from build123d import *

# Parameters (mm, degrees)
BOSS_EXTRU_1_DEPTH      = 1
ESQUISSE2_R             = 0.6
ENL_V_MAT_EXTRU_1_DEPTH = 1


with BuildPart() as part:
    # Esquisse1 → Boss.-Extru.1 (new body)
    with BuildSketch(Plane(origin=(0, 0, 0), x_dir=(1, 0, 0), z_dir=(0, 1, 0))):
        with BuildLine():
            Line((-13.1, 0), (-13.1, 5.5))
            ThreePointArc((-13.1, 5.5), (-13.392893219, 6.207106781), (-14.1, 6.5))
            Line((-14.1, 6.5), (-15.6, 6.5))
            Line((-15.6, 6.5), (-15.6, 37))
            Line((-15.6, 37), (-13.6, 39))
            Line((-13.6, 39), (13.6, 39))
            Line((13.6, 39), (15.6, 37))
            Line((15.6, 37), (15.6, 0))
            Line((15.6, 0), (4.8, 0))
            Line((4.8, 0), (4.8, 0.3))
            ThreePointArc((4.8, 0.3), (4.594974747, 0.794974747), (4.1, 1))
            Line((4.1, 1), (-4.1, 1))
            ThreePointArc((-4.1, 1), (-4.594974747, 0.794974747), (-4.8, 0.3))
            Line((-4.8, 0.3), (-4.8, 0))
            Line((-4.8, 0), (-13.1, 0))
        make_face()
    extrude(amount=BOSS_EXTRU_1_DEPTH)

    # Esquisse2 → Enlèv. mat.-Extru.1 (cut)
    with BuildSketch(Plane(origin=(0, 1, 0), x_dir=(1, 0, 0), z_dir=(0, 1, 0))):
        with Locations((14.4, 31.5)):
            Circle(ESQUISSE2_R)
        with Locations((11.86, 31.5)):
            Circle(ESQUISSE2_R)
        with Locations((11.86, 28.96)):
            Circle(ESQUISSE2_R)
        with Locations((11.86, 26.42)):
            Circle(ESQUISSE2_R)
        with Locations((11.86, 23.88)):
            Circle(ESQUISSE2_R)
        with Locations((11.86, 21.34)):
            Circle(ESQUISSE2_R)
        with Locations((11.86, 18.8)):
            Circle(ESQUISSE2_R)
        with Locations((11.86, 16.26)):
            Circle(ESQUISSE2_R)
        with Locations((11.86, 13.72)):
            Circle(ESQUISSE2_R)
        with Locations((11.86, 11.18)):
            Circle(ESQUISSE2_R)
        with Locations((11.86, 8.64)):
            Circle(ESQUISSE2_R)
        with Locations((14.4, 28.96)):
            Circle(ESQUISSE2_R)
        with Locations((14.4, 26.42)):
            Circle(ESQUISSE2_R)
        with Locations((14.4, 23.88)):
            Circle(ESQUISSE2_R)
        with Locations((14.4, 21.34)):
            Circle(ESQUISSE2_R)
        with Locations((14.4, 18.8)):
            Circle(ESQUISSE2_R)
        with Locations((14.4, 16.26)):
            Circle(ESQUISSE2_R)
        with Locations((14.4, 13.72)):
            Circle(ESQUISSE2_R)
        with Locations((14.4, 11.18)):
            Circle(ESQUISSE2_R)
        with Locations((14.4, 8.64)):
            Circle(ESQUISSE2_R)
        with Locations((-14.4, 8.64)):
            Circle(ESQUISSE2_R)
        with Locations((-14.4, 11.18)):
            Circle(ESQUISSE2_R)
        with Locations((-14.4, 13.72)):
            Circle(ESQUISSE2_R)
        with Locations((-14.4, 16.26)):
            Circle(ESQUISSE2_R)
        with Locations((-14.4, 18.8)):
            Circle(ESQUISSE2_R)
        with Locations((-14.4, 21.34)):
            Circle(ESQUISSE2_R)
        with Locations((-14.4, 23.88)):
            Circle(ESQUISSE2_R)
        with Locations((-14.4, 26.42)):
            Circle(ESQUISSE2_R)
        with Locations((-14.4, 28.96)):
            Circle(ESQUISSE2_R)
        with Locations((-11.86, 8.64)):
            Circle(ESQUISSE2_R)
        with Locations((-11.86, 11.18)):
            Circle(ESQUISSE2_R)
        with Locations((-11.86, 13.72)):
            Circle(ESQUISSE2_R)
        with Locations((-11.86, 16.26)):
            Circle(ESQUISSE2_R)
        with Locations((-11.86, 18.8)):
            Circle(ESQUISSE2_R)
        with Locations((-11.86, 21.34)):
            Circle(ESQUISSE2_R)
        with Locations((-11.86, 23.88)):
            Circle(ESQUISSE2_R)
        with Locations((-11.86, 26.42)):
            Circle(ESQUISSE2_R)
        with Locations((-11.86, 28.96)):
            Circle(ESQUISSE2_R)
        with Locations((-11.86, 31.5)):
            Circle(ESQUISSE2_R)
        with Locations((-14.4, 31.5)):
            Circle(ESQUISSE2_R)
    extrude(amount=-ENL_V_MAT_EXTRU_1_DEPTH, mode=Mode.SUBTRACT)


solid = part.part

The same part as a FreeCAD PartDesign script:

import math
import FreeCAD as App
import Part
import Sketcher

V = App.Vector

doc = App.newDocument("Part")
body = doc.addObject("PartDesign::Body", "Body")

# Sketch on XZ plane
sketch1 = body.newObject("Sketcher::SketchObject", "Sketch")
sketch1.AttachmentSupport = (doc.getObject("XZ_Plane"), [""])
sketch1.MapMode = "FlatFace"
sketch1.addGeometry([
    Part.LineSegment(V(-13.1, -5.5, 0), V(-13.1, 0, 0)),  # 0
    Part.LineSegment(V(-13.1, 0, 0), V(-4.8, 0, 0)),  # 1
    Part.LineSegment(V(-4.8, 0, 0), V(-4.8, -0.3, 0)),  # 2
    Part.ArcOfCircle(Part.Circle(V(-4.1, -0.3, 0), V(0, 0, 1), 0.7), math.radians(180), math.radians(270)),  # 3
    Part.LineSegment(V(-4.1, -1, 0), V(4.1, -1, 0)),  # 4
    Part.ArcOfCircle(Part.Circle(V(4.1, -0.3, 0), V(0, 0, 1), 0.7), math.radians(-90), math.radians(0)),  # 5
    Part.LineSegment(V(4.8, -0.3, 0), V(4.8, 0, 0)),  # 6
    Part.LineSegment(V(4.8, 0, 0), V(15.6, 0, 0)),  # 7
    Part.LineSegment(V(15.6, 0, 0), V(15.6, -37, 0)),  # 8
    Part.LineSegment(V(15.6, -37, 0), V(13.6, -39, 0)),  # 9
    Part.LineSegment(V(13.6, -39, 0), V(-13.6, -39, 0)),  # 10
    Part.LineSegment(V(-13.6, -39, 0), V(-15.6, -37, 0)),  # 11
    Part.LineSegment(V(-15.6, -37, 0), V(-15.6, -6.5, 0)),  # 12
    Part.LineSegment(V(-15.6, -6.5, 0), V(-14.1, -6.5, 0)),  # 13
    Part.ArcOfCircle(Part.Circle(V(-14.1, -5.5, 0), V(0, 0, 1), 1), math.radians(-90), math.radians(0)),  # 14
], False)
sketch1.addConstraint([
    Sketcher.Constraint("Coincident", 0, 2, 1, 1),
    Sketcher.Constraint("Coincident", 1, 2, 2, 1),
    Sketcher.Constraint("Tangent", 2, 2, 3, 1),
    Sketcher.Constraint("Tangent", 3, 2, 4, 1),
    Sketcher.Constraint("Tangent", 4, 2, 5, 1),
    Sketcher.Constraint("Tangent", 5, 2, 6, 1),
    Sketcher.Constraint("Coincident", 6, 2, 7, 1),
    Sketcher.Constraint("Coincident", 7, 2, 8, 1),
    Sketcher.Constraint("Coincident", 8, 2, 9, 1),
    Sketcher.Constraint("Coincident", 9, 2, 10, 1),
    Sketcher.Constraint("Coincident", 10, 2, 11, 1),
    Sketcher.Constraint("Coincident", 11, 2, 12, 1),
    Sketcher.Constraint("Coincident", 12, 2, 13, 1),
    Sketcher.Constraint("Tangent", 13, 2, 14, 1),
    Sketcher.Constraint("Tangent", 14, 2, 0, 1),
    Sketcher.Constraint("Vertical", 0),
    Sketcher.Constraint("Horizontal", 1),
    Sketcher.Constraint("Vertical", 2),
    Sketcher.Constraint("Horizontal", 4),
    Sketcher.Constraint("Vertical", 6),
    Sketcher.Constraint("Horizontal", 7),
    Sketcher.Constraint("Vertical", 8),
    Sketcher.Constraint("Horizontal", 10),
    Sketcher.Constraint("Vertical", 12),
    Sketcher.Constraint("Horizontal", 13),
    Sketcher.Constraint("Equal", 3, 5),
    Sketcher.Constraint("Symmetric", 1, 2, 6, 2, -1, 1),
    Sketcher.Constraint("Symmetric", 8, 2, 11, 2, -2),
    Sketcher.Constraint("PointOnObject", 0, 2, -1),
    Sketcher.Constraint("Perpendicular", 9, 11),
    Sketcher.Constraint("Equal", 9, 11),
    Sketcher.Constraint("Radius", 14, 1.0),
    Sketcher.Constraint("Radius", 3, 0.7),
    Sketcher.Constraint("DistanceY", 8, 2, 8, 1, 37.0),
    Sketcher.Constraint("DistanceX", 1, 1, 1, 2, 8.3),
    Sketcher.Constraint("DistanceX", 4, 1, 4, 2, 8.2),
    Sketcher.Constraint("DistanceX", 7, 1, 7, 2, 10.8),
    Sketcher.Constraint("DistanceX", 10, 2, 10, 1, 27.2),
    Sketcher.Constraint("DistanceY", 0, 1, 0, 2, 5.5),
    Sketcher.Constraint("DistanceY", 2, 2, 2, 1, 0.3),
])
pad1 = body.newObject("PartDesign::Pad", "Pad")
pad1.Profile = sketch1
pad1.Length = 1
pad1.Reversed = True

# Sketch on XZ plane
sketch2 = body.newObject("Sketcher::SketchObject", "Sketch001")
sketch2.AttachmentSupport = (doc.getObject("XZ_Plane"), [""])
sketch2.MapMode = "FlatFace"
sketch2.AttachmentOffset = App.Placement(V(0, 0, -1), App.Rotation())
sketch2.addGeometry([
    Part.Circle(V(14.4, -31.5, 0), V(0, 0, 1), 0.6),  # 0
    Part.Circle(V(11.9, -31.5, 0), V(0, 0, 1), 0.6),  # 1
    Part.Circle(V(11.9, -29, 0), V(0, 0, 1), 0.6),  # 2
    Part.Circle(V(11.9, -26.4, 0), V(0, 0, 1), 0.6),  # 3
    Part.Circle(V(11.9, -23.9, 0), V(0, 0, 1), 0.6),  # 4
    Part.Circle(V(11.9, -21.3, 0), V(0, 0, 1), 0.6),  # 5
    Part.Circle(V(11.9, -18.8, 0), V(0, 0, 1), 0.6),  # 6
    Part.Circle(V(11.9, -16.3, 0), V(0, 0, 1), 0.6),  # 7
    Part.Circle(V(11.9, -13.7, 0), V(0, 0, 1), 0.6),  # 8
    Part.Circle(V(11.9, -11.2, 0), V(0, 0, 1), 0.6),  # 9
    Part.Circle(V(11.9, -8.6, 0), V(0, 0, 1), 0.6),  # 10
    Part.Circle(V(14.4, -29, 0), V(0, 0, 1), 0.6),  # 11
    Part.Circle(V(14.4, -26.4, 0), V(0, 0, 1), 0.6),  # 12
    Part.Circle(V(14.4, -23.9, 0), V(0, 0, 1), 0.6),  # 13
    Part.Circle(V(14.4, -21.3, 0), V(0, 0, 1), 0.6),  # 14
    Part.Circle(V(14.4, -18.8, 0), V(0, 0, 1), 0.6),  # 15
    Part.Circle(V(14.4, -16.3, 0), V(0, 0, 1), 0.6),  # 16
    Part.Circle(V(14.4, -13.7, 0), V(0, 0, 1), 0.6),  # 17
    Part.Circle(V(14.4, -11.2, 0), V(0, 0, 1), 0.6),  # 18
    Part.Circle(V(14.4, -8.6, 0), V(0, 0, 1), 0.6),  # 19
    Part.Circle(V(-14.4, -8.6, 0), V(0, 0, 1), 0.6),  # 20
    Part.Circle(V(-14.4, -11.2, 0), V(0, 0, 1), 0.6),  # 21
    Part.Circle(V(-14.4, -13.7, 0), V(0, 0, 1), 0.6),  # 22
    Part.Circle(V(-14.4, -16.3, 0), V(0, 0, 1), 0.6),  # 23
    Part.Circle(V(-14.4, -18.8, 0), V(0, 0, 1), 0.6),  # 24
    Part.Circle(V(-14.4, -21.3, 0), V(0, 0, 1), 0.6),  # 25
    Part.Circle(V(-14.4, -23.9, 0), V(0, 0, 1), 0.6),  # 26
    Part.Circle(V(-14.4, -26.4, 0), V(0, 0, 1), 0.6),  # 27
    Part.Circle(V(-14.4, -29, 0), V(0, 0, 1), 0.6),  # 28
    Part.Circle(V(-11.9, -8.6, 0), V(0, 0, 1), 0.6),  # 29
    Part.Circle(V(-11.9, -11.2, 0), V(0, 0, 1), 0.6),  # 30
    Part.Circle(V(-11.9, -13.7, 0), V(0, 0, 1), 0.6),  # 31
    Part.Circle(V(-11.9, -16.3, 0), V(0, 0, 1), 0.6),  # 32
    Part.Circle(V(-11.9, -18.8, 0), V(0, 0, 1), 0.6),  # 33
    Part.Circle(V(-11.9, -21.3, 0), V(0, 0, 1), 0.6),  # 34
    Part.Circle(V(-11.9, -23.9, 0), V(0, 0, 1), 0.6),  # 35
    Part.Circle(V(-11.9, -26.4, 0), V(0, 0, 1), 0.6),  # 36
    Part.Circle(V(-11.9, -29, 0), V(0, 0, 1), 0.6),  # 37
    Part.Circle(V(-11.9, -31.5, 0), V(0, 0, 1), 0.6),  # 38
    Part.Circle(V(-14.4, -31.5, 0), V(0, 0, 1), 0.6),  # 39
], False)
sketch2.addConstraint([
    Sketcher.Constraint("Equal", 0, 1),
    Sketcher.Constraint("Equal", 1, 2),
    Sketcher.Constraint("Equal", 2, 3),
    Sketcher.Constraint("Equal", 3, 4),
    Sketcher.Constraint("Equal", 4, 5),
    Sketcher.Constraint("Equal", 5, 6),
    Sketcher.Constraint("Equal", 6, 7),
    Sketcher.Constraint("Equal", 7, 8),
    Sketcher.Constraint("Equal", 8, 9),
    Sketcher.Constraint("Equal", 9, 10),
    Sketcher.Constraint("Equal", 10, 11),
    Sketcher.Constraint("Equal", 11, 12),
    Sketcher.Constraint("Equal", 12, 13),
    Sketcher.Constraint("Equal", 13, 14),
    Sketcher.Constraint("Equal", 14, 15),
    Sketcher.Constraint("Equal", 15, 16),
    Sketcher.Constraint("Equal", 16, 17),
    Sketcher.Constraint("Equal", 17, 18),
    Sketcher.Constraint("Equal", 18, 19),
    Sketcher.Constraint("Equal", 19, 20),
    Sketcher.Constraint("Equal", 20, 21),
    Sketcher.Constraint("Equal", 21, 22),
    Sketcher.Constraint("Equal", 22, 23),
    Sketcher.Constraint("Equal", 23, 24),
    Sketcher.Constraint("Equal", 24, 25),
    Sketcher.Constraint("Equal", 25, 26),
    Sketcher.Constraint("Equal", 26, 27),
    Sketcher.Constraint("Equal", 27, 28),
    Sketcher.Constraint("Equal", 28, 29),
    Sketcher.Constraint("Equal", 29, 30),
    Sketcher.Constraint("Equal", 30, 31),
    Sketcher.Constraint("Equal", 31, 32),
    Sketcher.Constraint("Equal", 32, 33),
    Sketcher.Constraint("Equal", 33, 34),
    Sketcher.Constraint("Equal", 34, 35),
    Sketcher.Constraint("Equal", 35, 36),
    Sketcher.Constraint("Equal", 36, 37),
    Sketcher.Constraint("Equal", 37, 38),
    Sketcher.Constraint("Equal", 38, 39),
    Sketcher.Constraint("Symmetric", 19, 3, 20, 3, -2),
    Sketcher.Constraint("Symmetric", 18, 3, 21, 3, -2),
    Sketcher.Constraint("Symmetric", 17, 3, 22, 3, -2),
    Sketcher.Constraint("Symmetric", 16, 3, 23, 3, -2),
    Sketcher.Constraint("Symmetric", 15, 3, 24, 3, -2),
    Sketcher.Constraint("Symmetric", 14, 3, 25, 3, -2),
    Sketcher.Constraint("Symmetric", 13, 3, 26, 3, -2),
    Sketcher.Constraint("Symmetric", 12, 3, 27, 3, -2),
    Sketcher.Constraint("Symmetric", 11, 3, 28, 3, -2),
    Sketcher.Constraint("Symmetric", 10, 3, 29, 3, -2),
    Sketcher.Constraint("Symmetric", 9, 3, 30, 3, -2),
    Sketcher.Constraint("Symmetric", 8, 3, 31, 3, -2),
    Sketcher.Constraint("Symmetric", 7, 3, 32, 3, -2),
    Sketcher.Constraint("Symmetric", 6, 3, 33, 3, -2),
    Sketcher.Constraint("Symmetric", 5, 3, 34, 3, -2),
    Sketcher.Constraint("Symmetric", 4, 3, 35, 3, -2),
    Sketcher.Constraint("Symmetric", 3, 3, 36, 3, -2),
    Sketcher.Constraint("Symmetric", 2, 3, 37, 3, -2),
    Sketcher.Constraint("Symmetric", 1, 3, 38, 3, -2),
    Sketcher.Constraint("Symmetric", 0, 3, 39, 3, -2),
    Sketcher.Constraint("Horizontal", 0, 3, 1, 3),
    Sketcher.Constraint("Horizontal", 2, 3, 11, 3),
    Sketcher.Constraint("Horizontal", 3, 3, 12, 3),
    Sketcher.Constraint("Horizontal", 4, 3, 13, 3),
    Sketcher.Constraint("Horizontal", 5, 3, 14, 3),
    Sketcher.Constraint("Horizontal", 6, 3, 15, 3),
    Sketcher.Constraint("Horizontal", 7, 3, 16, 3),
    Sketcher.Constraint("Horizontal", 8, 3, 17, 3),
    Sketcher.Constraint("Horizontal", 9, 3, 18, 3),
    Sketcher.Constraint("Horizontal", 10, 3, 19, 3),
    Sketcher.Constraint("Vertical", 1, 3, 2, 3),
    Sketcher.Constraint("Vertical", 2, 3, 3, 3),
    Sketcher.Constraint("Vertical", 3, 3, 4, 3),
    Sketcher.Constraint("Vertical", 4, 3, 5, 3),
    Sketcher.Constraint("Vertical", 5, 3, 6, 3),
    Sketcher.Constraint("Vertical", 6, 3, 7, 3),
    Sketcher.Constraint("Vertical", 7, 3, 8, 3),
    Sketcher.Constraint("Vertical", 8, 3, 9, 3),
    Sketcher.Constraint("Vertical", 9, 3, 10, 3),
    Sketcher.Constraint("Vertical", 0, 3, 11, 3),
    Sketcher.Constraint("Vertical", 11, 3, 12, 3),
    Sketcher.Constraint("Vertical", 12, 3, 13, 3),
    Sketcher.Constraint("Vertical", 13, 3, 14, 3),
    Sketcher.Constraint("Vertical", 14, 3, 15, 3),
    Sketcher.Constraint("Vertical", 15, 3, 16, 3),
    Sketcher.Constraint("Vertical", 16, 3, 17, 3),
    Sketcher.Constraint("Vertical", 17, 3, 18, 3),
    Sketcher.Constraint("Vertical", 18, 3, 19, 3),
    Sketcher.Constraint("Diameter", 0, 1.2),
    Sketcher.Constraint("DistanceX", -1, 1, 0, 3, 14.4),
    Sketcher.Constraint("DistanceY", 0, 3, -1, 1, 31.5),
    Sketcher.Constraint("DistanceY", 6, 3, -1, 1, 18.8),
    Sketcher.Constraint("DistanceY", 2, 3, 7, 3, 12.7),
    Sketcher.Constraint("DistanceY", 3, 3, 8, 3, 12.7),
    Sketcher.Constraint("DistanceY", 4, 3, 9, 3, 12.7),
    Sketcher.Constraint("DistanceY", 5, 3, 10, 3, 12.7),
    Sketcher.Constraint("DistanceX", -1, 1, 1, 3, 11.86),
    Sketcher.Constraint("DistanceY", 2, 3, -1, 1, 28.96),
    Sketcher.Constraint("DistanceY", 3, 3, -1, 1, 26.42),
    Sketcher.Constraint("DistanceY", 4, 3, -1, 1, 23.88),
    Sketcher.Constraint("DistanceY", 5, 3, -1, 1, 21.34),
])
pocket1 = body.newObject("PartDesign::Pocket", "Pocket")
pocket1.Profile = sketch2
pocket1.Length = 1
pocket1.Reversed = True

doc.recompute()
